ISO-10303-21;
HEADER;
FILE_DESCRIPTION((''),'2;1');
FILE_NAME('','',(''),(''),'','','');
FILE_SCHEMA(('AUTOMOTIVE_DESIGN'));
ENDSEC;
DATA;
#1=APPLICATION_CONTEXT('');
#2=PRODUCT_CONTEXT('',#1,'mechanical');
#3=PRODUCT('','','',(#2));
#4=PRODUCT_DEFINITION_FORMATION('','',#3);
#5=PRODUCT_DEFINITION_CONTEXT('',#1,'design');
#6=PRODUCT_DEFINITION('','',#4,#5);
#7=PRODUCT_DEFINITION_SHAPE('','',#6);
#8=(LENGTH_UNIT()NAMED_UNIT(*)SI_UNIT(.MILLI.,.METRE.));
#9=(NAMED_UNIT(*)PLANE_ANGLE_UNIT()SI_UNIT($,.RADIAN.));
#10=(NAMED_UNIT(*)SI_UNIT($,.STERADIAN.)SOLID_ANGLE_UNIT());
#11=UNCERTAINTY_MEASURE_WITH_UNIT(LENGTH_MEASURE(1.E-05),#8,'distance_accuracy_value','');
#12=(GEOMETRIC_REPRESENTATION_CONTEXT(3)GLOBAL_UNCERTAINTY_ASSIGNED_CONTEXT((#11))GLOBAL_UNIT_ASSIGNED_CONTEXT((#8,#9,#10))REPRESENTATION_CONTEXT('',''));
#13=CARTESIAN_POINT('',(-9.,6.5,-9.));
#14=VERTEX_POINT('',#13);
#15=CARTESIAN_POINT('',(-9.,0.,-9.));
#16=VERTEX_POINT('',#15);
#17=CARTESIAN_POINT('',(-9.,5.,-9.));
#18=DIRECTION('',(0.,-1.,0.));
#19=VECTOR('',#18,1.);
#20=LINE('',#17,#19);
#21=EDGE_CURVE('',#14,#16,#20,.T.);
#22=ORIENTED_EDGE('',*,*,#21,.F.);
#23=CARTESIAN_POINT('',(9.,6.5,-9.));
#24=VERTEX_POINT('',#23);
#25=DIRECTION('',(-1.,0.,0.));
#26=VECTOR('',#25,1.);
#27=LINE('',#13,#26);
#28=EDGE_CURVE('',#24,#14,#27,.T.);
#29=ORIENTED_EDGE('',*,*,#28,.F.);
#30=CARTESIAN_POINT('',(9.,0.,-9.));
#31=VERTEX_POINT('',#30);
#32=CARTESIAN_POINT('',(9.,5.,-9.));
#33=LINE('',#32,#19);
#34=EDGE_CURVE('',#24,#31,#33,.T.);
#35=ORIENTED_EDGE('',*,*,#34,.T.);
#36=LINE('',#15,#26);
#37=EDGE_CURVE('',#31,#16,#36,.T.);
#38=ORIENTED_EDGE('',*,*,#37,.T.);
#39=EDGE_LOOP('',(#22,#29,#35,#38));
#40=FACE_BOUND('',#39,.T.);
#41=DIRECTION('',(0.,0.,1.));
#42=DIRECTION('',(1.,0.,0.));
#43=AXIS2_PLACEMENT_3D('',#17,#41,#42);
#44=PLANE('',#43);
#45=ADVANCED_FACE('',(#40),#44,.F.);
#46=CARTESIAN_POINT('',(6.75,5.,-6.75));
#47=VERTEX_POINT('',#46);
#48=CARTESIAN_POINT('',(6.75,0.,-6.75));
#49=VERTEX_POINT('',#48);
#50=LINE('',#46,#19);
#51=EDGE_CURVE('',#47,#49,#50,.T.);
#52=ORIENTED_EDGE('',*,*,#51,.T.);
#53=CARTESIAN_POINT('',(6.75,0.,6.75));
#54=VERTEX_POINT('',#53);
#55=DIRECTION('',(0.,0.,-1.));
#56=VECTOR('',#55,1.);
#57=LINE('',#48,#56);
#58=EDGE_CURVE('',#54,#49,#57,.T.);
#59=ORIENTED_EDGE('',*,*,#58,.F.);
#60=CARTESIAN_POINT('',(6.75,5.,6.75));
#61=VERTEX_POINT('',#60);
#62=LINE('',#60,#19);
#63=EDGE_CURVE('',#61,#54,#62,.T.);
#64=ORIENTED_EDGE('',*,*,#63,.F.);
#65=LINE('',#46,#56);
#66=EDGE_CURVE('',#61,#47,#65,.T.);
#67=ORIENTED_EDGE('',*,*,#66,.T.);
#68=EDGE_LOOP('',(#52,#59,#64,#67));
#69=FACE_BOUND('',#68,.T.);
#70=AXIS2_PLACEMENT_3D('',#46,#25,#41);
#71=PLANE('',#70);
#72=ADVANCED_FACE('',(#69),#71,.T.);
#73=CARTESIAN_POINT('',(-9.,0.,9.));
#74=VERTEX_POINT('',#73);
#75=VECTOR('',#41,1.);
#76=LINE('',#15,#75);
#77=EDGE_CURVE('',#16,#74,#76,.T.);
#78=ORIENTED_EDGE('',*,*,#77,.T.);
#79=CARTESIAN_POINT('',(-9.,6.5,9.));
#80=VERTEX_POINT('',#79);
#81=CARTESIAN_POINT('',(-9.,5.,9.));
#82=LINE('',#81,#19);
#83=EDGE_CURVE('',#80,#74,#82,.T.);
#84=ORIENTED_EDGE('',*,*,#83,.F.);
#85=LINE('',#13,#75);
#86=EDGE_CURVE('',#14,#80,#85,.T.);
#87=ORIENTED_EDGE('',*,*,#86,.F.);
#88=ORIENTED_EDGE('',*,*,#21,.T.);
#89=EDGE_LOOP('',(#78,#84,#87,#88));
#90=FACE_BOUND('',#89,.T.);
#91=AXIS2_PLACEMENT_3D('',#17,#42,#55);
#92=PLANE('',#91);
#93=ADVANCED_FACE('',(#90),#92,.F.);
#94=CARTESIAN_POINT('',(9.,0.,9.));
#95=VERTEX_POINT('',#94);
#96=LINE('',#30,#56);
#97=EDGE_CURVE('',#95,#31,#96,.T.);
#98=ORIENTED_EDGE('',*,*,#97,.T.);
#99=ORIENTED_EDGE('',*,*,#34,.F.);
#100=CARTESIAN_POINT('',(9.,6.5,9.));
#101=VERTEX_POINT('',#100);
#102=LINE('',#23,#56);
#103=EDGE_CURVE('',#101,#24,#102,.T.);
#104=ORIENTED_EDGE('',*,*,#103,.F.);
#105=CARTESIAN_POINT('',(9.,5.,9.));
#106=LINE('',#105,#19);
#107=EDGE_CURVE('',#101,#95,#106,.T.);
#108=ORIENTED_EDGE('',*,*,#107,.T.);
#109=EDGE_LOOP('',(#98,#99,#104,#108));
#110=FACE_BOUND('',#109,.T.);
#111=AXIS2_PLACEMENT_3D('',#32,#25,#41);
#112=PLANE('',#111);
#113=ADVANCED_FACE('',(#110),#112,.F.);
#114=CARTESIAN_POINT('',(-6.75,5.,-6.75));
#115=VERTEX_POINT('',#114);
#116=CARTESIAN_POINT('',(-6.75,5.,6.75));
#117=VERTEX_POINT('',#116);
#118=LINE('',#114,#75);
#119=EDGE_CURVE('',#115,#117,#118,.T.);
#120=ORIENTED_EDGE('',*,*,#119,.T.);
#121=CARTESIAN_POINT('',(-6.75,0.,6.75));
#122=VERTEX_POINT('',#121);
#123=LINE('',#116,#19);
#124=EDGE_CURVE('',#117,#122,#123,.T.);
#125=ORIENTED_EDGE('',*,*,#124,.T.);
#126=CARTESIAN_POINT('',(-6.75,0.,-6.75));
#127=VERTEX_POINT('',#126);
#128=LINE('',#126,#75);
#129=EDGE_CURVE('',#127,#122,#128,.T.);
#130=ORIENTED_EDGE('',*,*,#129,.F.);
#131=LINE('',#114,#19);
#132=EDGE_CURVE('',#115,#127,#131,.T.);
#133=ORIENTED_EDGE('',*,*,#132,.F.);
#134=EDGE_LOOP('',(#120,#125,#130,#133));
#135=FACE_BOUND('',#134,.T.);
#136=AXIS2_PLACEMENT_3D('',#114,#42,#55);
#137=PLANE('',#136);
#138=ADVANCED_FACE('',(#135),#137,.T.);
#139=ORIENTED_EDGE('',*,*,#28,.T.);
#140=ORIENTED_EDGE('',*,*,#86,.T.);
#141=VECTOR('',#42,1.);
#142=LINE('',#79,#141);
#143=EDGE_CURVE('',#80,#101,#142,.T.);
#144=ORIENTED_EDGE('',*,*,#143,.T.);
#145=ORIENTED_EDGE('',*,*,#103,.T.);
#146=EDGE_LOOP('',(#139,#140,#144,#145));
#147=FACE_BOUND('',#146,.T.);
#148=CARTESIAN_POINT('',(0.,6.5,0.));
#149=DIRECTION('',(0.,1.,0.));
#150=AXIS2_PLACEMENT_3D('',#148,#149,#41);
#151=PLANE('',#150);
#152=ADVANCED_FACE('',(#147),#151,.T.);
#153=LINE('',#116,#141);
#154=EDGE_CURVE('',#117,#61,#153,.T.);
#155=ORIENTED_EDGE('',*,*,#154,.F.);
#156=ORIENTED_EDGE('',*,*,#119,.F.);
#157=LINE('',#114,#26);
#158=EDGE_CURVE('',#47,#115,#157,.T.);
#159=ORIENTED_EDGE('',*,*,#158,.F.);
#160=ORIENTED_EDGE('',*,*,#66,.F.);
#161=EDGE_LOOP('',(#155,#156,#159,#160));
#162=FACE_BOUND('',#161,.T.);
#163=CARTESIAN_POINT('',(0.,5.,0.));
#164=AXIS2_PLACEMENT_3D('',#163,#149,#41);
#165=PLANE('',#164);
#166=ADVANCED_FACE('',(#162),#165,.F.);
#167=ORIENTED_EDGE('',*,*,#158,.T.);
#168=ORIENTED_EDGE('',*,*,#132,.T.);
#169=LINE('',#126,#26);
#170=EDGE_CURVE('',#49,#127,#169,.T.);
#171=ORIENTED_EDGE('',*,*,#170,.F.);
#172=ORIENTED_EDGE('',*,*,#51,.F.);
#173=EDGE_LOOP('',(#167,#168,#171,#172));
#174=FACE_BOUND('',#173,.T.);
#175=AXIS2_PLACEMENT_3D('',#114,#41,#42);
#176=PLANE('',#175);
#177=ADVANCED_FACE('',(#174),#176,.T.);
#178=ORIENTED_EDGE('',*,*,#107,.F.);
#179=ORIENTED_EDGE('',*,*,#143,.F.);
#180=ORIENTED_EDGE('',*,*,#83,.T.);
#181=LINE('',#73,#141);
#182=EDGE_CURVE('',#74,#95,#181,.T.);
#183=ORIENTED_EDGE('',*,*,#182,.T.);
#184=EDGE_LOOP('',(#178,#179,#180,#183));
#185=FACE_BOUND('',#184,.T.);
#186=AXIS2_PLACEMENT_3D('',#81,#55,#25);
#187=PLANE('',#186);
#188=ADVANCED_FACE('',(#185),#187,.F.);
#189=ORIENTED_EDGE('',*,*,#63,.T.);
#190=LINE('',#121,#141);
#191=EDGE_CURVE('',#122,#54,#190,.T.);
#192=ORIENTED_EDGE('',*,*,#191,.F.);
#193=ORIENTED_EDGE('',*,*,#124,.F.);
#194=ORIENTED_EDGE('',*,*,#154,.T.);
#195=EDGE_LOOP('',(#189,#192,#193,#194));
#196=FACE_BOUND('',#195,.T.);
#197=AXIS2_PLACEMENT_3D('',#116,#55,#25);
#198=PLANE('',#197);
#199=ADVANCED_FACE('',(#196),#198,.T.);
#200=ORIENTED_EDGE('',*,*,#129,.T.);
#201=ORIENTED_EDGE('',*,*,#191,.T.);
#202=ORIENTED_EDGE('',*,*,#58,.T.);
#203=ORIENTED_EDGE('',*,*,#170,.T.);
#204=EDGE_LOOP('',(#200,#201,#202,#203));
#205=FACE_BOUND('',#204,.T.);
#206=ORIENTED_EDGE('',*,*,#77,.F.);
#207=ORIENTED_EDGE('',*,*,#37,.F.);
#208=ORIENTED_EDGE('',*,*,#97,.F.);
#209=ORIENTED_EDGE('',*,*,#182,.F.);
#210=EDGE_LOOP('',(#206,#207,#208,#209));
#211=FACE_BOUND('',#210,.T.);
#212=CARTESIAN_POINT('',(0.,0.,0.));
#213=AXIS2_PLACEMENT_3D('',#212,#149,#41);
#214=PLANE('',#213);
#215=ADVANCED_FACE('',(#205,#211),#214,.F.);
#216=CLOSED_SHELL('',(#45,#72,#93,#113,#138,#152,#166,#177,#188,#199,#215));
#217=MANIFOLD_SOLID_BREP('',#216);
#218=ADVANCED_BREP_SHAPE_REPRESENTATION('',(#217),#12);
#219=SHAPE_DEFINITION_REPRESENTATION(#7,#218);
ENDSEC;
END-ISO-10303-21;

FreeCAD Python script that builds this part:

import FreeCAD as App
import Part
import Sketcher


def add_polygon(sketch, points):
    """Adds a closed chain of lines whose ends are joined by coincident constraints."""
    first, n = sketch.GeometryCount, len(points)
    for a, b in zip(points, points[1:] + points[:1]):
        sketch.addGeometry(Part.LineSegment(App.Vector(*a, 0), App.Vector(*b, 0)), False)
    for i in range(n):
        sketch.addConstraint(Sketcher.Constraint("Coincident", first + i, 2, first + (i + 1) % n, 1))

doc = App.newDocument("Part")
body = doc.addObject("PartDesign::Body", "Body")

# Sketch on XZ plane
sketch1 = body.newObject("Sketcher::SketchObject", "Sketch")
sketch1.AttachmentSupport = (doc.getObject("XZ_Plane"), [""])
sketch1.MapMode = "FlatFace"
add_polygon(sketch1, [(-9, -9), (-9, 9), (9, 9), (9, -9)])  # lines 0-3
add_polygon(sketch1, [(6.75, 6.75), (-6.75, 6.75), (-6.75, -6.75), (6.75, -6.75)])  # lines 4-7
sketch1.addConstraint([
    Sketcher.Constraint("Vertical", 0),
    Sketcher.Constraint("Horizontal", 1),
    Sketcher.Constraint("Vertical", 2),
    Sketcher.Constraint("Horizontal", 3),
    Sketcher.Constraint("Horizontal", 4),
    Sketcher.Constraint("Vertical", 5),
    Sketcher.Constraint("Horizontal", 6),
    Sketcher.Constraint("Vertical", 7),
    Sketcher.Constraint("Symmetric", 0, 2, 2, 2, -1, 1),
    Sketcher.Constraint("Symmetric", 4, 2, 6, 2, -1, 1),
    Sketcher.Constraint("Equal", 3, 0),
    Sketcher.Constraint("Equal", 6, 5),
    Sketcher.Constraint("DistanceX", 1, 1, 1, 2, 18.0),
    Sketcher.Constraint("DistanceX", 4, 2, 4, 1, 13.5),
])
pad1 = body.newObject("PartDesign::Pad", "Pad")
pad1.Profile = sketch1
pad1.Length = 5
pad1.Reversed = True

# Sketch on XZ plane
sketch2 = body.newObject("Sketcher::SketchObject", "Sketch001")
sketch2.AttachmentSupport = (doc.getObject("XZ_Plane"), [""])
sketch2.MapMode = "FlatFace"
sketch2.AttachmentOffset = App.Placement(App.Vector(0, 0, -5), App.Rotation())
add_polygon(sketch2, [(-9, -9), (-9, 9), (9, 9), (9, -9)])  # lines 0-3
sketch2.addConstraint([
    Sketcher.Constraint("Vertical", 0),
    Sketcher.Constraint("Horizontal", 1),
    Sketcher.Constraint("Vertical", 2),
    Sketcher.Constraint("Horizontal", 3),
    Sketcher.Constraint("Symmetric", 0, 2, 2, 2, -1, 1),
    Sketcher.Constraint("Equal", 3, 0),
    Sketcher.Constraint("DistanceX", 1, 1, 1, 2, 18.0),
])
pad2 = body.newObject("PartDesign::Pad", "Pad001")
pad2.Profile = sketch2
pad2.Length = 1.5
pad2.Reversed = True

doc.recompute()
